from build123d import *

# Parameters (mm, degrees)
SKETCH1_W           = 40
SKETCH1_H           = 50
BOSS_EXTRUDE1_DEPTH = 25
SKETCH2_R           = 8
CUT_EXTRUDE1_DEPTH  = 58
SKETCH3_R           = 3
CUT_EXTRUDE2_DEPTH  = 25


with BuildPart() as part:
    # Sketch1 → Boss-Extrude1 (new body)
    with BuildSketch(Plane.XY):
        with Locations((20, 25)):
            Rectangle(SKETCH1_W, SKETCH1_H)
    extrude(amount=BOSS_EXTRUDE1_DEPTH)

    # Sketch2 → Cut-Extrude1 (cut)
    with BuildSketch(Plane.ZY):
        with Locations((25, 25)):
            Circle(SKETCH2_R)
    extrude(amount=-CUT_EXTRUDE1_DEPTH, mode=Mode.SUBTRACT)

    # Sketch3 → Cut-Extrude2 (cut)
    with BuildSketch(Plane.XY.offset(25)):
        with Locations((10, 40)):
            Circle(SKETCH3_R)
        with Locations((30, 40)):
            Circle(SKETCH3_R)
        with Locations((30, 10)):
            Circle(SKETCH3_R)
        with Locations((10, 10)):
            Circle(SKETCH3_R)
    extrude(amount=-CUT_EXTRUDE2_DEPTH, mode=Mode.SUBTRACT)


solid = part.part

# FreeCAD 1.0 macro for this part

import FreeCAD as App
import Part
import Sketcher
from FreeCAD import Vector
Q = App.Units.Quantity

doc = App.newDocument("Part")
body = doc.addObject("PartDesign::Body", "Body")

sketch1 = body.newObject("Sketcher::SketchObject", "Sketch")
sketch1.AttachmentSupport = (doc.getObject("XY_Plane"), [""])
sketch1.MapMode = "FlatFace"
sketch1.addGeometry(Part.LineSegment(Vector(0, 50, 0), Vector(0, 0, 0)), False)
sketch1.addGeometry(Part.LineSegment(Vector(0, 0, 0), Vector(40, 0, 0)), False)
sketch1.addGeometry(Part.LineSegment(Vector(40, 0, 0), Vector(40, 50, 0)), False)
sketch1.addGeometry(Part.LineSegment(Vector(40, 50, 0), Vector(0, 50, 0)), False)
sketch1.addConstraint(Sketcher.Constraint("Coincident", 0, 2, 1, 1))
sketch1.addConstraint(Sketcher.Constraint("Coincident", 1, 2, 2, 1))
sketch1.addConstraint(Sketcher.Constraint("Coincident", 2, 2, 3, 1))
sketch1.addConstraint(Sketcher.Constraint("Coincident", 3, 2, 0, 1))
sketch1.addConstraint(Sketcher.Constraint("Vertical", 0))
sketch1.addConstraint(Sketcher.Constraint("Horizontal", 1))
sketch1.addConstraint(Sketcher.Constraint("Vertical", 2))
sketch1.addConstraint(Sketcher.Constraint("Horizontal", 3))
sketch1.addConstraint(Sketcher.Constraint("Coincident", 0, 2, -1, 1))
sketch1.addConstraint(Sketcher.Constraint("DistanceX", 1, 1, 1, 2, Q("40 mm")))
sketch1.addConstraint(Sketcher.Constraint("DistanceY", 0, 2, 0, 1, Q("50 mm")))
pad1 = body.newObject("PartDesign::Pad", "Pad")
pad1.Profile = sketch1
pad1.Length = 25

sketch2 = body.newObject("Sketcher::SketchObject", "Sketch001")
sketch2.AttachmentSupport = (doc.getObject("YZ_Plane"), [""])
sketch2.MapMode = "FlatFace"
sketch2.addGeometry(Part.Circle(Vector(25, 25, 0), Vector(0, 0, 1), 8), False)
sketch2.addConstraint(Sketcher.Constraint("Diameter", 0, Q("16 mm")))
sketch2.addConstraint(Sketcher.Constraint("DistanceX", -1, 1, 0, 3, Q("25 mm")))
sketch2.addConstraint(Sketcher.Constraint("DistanceY", -1, 1, 0, 3, Q("25 mm")))
pocket1 = body.newObject("PartDesign::Pocket", "Pocket")
pocket1.Profile = sketch2
pocket1.Length = 58
pocket1.Reversed = True

sketch3 = body.newObject("Sketcher::SketchObject", "Sketch002")
sketch3.AttachmentSupport = (doc.getObject("XY_Plane"), [""])
sketch3.MapMode = "FlatFace"
sketch3.AttachmentOffset = App.Placement(Vector(0, 0, 25), App.Rotation())
sketch3.addGeometry(Part.Circle(Vector(10, 40, 0), Vector(0, 0, 1), 3), False)
sketch3.addGeometry(Part.Circle(Vector(30, 40, 0), Vector(0, 0, 1), 3), False)
sketch3.addGeometry(Part.Circle(Vector(30, 10, 0), Vector(0, 0, 1), 3), False)
sketch3.addGeometry(Part.Circle(Vector(10, 10, 0), Vector(0, 0, 1), 3), False)
sketch3.addConstraint(Sketcher.Constraint("Equal", 0, 1))
sketch3.addConstraint(Sketcher.Constraint("Equal", 1, 2))
sketch3.addConstraint(Sketcher.Constraint("Equal", 2, 3))
sketch3.addConstraint(Sketcher.Constraint("Horizontal", 0, 3, 1, 3))
sketch3.addConstraint(Sketcher.Constraint("Horizontal", 2, 3, 3, 3))
sketch3.addConstraint(Sketcher.Constraint("Vertical", 1, 3, 2, 3))
sketch3.addConstraint(Sketcher.Constraint("Vertical", 0, 3, 3, 3))
sketch3.addConstraint(Sketcher.Constraint("Diameter", 0, Q("6 mm")))
sketch3.addConstraint(Sketcher.Constraint("DistanceX", -1, 1, 0, 3, Q("10 mm")))
sketch3.addConstraint(Sketcher.Constraint("DistanceY", -1, 1, 0, 3, Q("40 mm")))
sketch3.addConstraint(Sketcher.Constraint("DistanceX", -1, 1, 1, 3, Q("30 mm")))
sketch3.addConstraint(Sketcher.Constraint("DistanceY", -1, 1, 2, 3, Q("10 mm")))
pocket2 = body.newObject("PartDesign::Pocket", "Pocket001")
pocket2.Profile = sketch3
pocket2.Length = 25

doc.recompute()
